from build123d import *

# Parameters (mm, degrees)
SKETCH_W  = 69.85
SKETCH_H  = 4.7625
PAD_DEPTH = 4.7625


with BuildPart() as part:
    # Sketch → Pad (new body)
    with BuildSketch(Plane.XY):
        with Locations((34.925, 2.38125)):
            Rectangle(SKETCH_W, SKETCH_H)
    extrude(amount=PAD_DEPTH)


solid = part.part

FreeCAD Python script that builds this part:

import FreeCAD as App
import Part
import Sketcher
from FreeCAD import Vector
Q = App.Units.Quantity


def add_polygon(sketch, points):
    """Adds a closed chain of lines whose ends are joined by coincident constraints."""
    first, n = sketch.GeometryCount, len(points)
    for a, b in zip(points, points[1:] + points[:1]):
        sketch.addGeometry(Part.LineSegment(App.Vector(*a, 0), App.Vector(*b, 0)), False)
    for i in range(n):
        sketch.addConstraint(Sketcher.Constraint("Coincident", first + i, 2, first + (i + 1) % n, 1))

doc = App.newDocument("Part")
params = doc.addObject("Spreadsheet::Sheet", "Params")
for row, (alias, value) in enumerate([
    ("sketch1_width", "2.75 in"),
    ("sketch1_height", "0.1875 in"),
    ("pad1_length", "0.1875 in"),
], start=1):
    params.set(f"A{row}", alias)
    params.set(f"B{row}", "=" + value)
    params.setAlias(f"B{row}", alias)

body = doc.addObject("PartDesign::Body", "Body")

sketch1 = doc.addObject("Sketcher::SketchObject", "Sketch")
body.addObject(sketch1)
sketch1.AttachmentSupport = (doc.XY_Plane, [""])
sketch1.MapMode = "FlatFace"
add_polygon(sketch1, [(0, 4.7625), (0, 0), (69.85, 0), (69.85, 4.7625)])
sketch1.addConstraint(Sketcher.Constraint("Vertical", 0))
sketch1.addConstraint(Sketcher.Constraint("Horizontal", 1))
sketch1.addConstraint(Sketcher.Constraint("Vertical", 2))
sketch1.addConstraint(Sketcher.Constraint("Horizontal", 3))
sketch1.addConstraint(Sketcher.Constraint("Coincident", 0, 2, -1, 1))
sketch1.addConstraint(Sketcher.Constraint("DistanceX", 1, 1, 1, 2, Q("2.75 in")))
sketch1.addConstraint(Sketcher.Constraint("DistanceY", 0, 2, 0, 1, Q("0.1875 in")))
sketch1.setExpression("Constraints[9]", "Params.sketch1_width")
sketch1.setExpression("Constraints[10]", "Params.sketch1_height")
pad1 = doc.addObject("PartDesign::Pad", "Pad")
body.addObject(pad1)
pad1.Profile = sketch1
pad1.setExpression("Length", "Params.pad1_length")

doc.recompute()
